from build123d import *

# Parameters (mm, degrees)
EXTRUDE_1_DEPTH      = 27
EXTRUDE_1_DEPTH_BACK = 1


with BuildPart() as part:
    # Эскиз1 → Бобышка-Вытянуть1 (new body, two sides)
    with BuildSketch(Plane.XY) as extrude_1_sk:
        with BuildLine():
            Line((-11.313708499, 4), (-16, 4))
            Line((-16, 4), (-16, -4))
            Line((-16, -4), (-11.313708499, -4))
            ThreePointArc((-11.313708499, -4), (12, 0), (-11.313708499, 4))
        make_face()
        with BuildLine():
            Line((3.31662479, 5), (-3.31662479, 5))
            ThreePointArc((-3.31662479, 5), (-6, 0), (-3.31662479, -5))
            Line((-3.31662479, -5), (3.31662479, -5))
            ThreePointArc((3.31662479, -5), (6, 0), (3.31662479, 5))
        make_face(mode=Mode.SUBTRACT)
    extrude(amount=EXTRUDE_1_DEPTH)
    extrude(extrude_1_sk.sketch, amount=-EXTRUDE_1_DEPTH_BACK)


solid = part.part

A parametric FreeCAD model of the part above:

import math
import FreeCAD as App
import Part
import Sketcher

V = App.Vector

doc = App.newDocument("Part")
body = doc.addObject("PartDesign::Body", "Body")

# Sketch on XY plane
sketch1 = doc.addObject("Sketcher::SketchObject", "Sketch")
body.addObject(sketch1)
sketch1.AttachmentSupport = (doc.XY_Plane, [""])
sketch1.MapMode = "FlatFace"
sketch1.addGeometry([
    Part.LineSegment(V(-11.3, 4, 0), V(-16, 4, 0)),  # 0
    Part.LineSegment(V(-16, 4, 0), V(-16, -4, 0)),  # 1
    Part.LineSegment(V(-16, -4, 0), V(-11.3, -4, 0)),  # 2
    Part.ArcOfCircle(Part.Circle(V(0, 0, 0), V(0, 0, 1), 12), math.radians(-161), math.radians(161)),  # 3
    Part.LineSegment(V(-3.3, 5, 0), V(3.3, 5, 0)),  # 4
    Part.ArcOfCircle(Part.Circle(V(0, 0, 0), V(0, 0, 1), 6), math.radians(-56), math.radians(56)),  # 5
    Part.LineSegment(V(3.3, -5, 0), V(-3.3, -5, 0)),  # 6
    Part.ArcOfCircle(Part.Circle(V(0, 0, 0), V(0, 0, 1), 6), math.radians(124), math.radians(236)),  # 7
], False)
sketch1.addConstraint([
    Sketcher.Constraint("Coincident", 0, 2, 1, 1),
    Sketcher.Constraint("Coincident", 1, 2, 2, 1),
    Sketcher.Constraint("Coincident", 2, 2, 3, 1),
    Sketcher.Constraint("Coincident", 3, 2, 0, 1),
    Sketcher.Constraint("Coincident", 4, 2, 5, 2),
    Sketcher.Constraint("Coincident", 5, 1, 6, 1),
    Sketcher.Constraint("Coincident", 6, 2, 7, 2),
    Sketcher.Constraint("Coincident", 7, 1, 4, 1),
    Sketcher.Constraint("Horizontal", 0),
    Sketcher.Constraint("Vertical", 1),
    Sketcher.Constraint("Horizontal", 2),
    Sketcher.Constraint("Horizontal", 4),
    Sketcher.Constraint("Horizontal", 6),
    Sketcher.Constraint("Coincident", 3, 3, -1, 1),
    Sketcher.Constraint("Coincident", 5, 3, -1, 1),
    Sketcher.Constraint("Coincident", 7, 3, -1, 1),
    Sketcher.Constraint("Equal", 5, 7),
    Sketcher.Constraint("Vertical", 2, 2, 3, 2),
    Sketcher.Constraint("Vertical", 4, 2, 5, 1),
    Sketcher.Constraint("Radius", 3, 12.0),
    Sketcher.Constraint("Radius", 5, 6.0),
    Sketcher.Constraint("DistanceY", 1, 2, 1, 1, 8.0),
    Sketcher.Constraint("DistanceX", 0, 2, -1, 1, 16.0),
    Sketcher.Constraint("DistanceY", -1, 1, 4, 2, 5.0),
])
pad1 = doc.addObject("PartDesign::Pad", "Pad")
body.addObject(pad1)
pad1.Profile = sketch1
pad1.Type = "TwoLengths"
pad1.Length = 27
pad1.Length2 = 1

doc.recompute()
